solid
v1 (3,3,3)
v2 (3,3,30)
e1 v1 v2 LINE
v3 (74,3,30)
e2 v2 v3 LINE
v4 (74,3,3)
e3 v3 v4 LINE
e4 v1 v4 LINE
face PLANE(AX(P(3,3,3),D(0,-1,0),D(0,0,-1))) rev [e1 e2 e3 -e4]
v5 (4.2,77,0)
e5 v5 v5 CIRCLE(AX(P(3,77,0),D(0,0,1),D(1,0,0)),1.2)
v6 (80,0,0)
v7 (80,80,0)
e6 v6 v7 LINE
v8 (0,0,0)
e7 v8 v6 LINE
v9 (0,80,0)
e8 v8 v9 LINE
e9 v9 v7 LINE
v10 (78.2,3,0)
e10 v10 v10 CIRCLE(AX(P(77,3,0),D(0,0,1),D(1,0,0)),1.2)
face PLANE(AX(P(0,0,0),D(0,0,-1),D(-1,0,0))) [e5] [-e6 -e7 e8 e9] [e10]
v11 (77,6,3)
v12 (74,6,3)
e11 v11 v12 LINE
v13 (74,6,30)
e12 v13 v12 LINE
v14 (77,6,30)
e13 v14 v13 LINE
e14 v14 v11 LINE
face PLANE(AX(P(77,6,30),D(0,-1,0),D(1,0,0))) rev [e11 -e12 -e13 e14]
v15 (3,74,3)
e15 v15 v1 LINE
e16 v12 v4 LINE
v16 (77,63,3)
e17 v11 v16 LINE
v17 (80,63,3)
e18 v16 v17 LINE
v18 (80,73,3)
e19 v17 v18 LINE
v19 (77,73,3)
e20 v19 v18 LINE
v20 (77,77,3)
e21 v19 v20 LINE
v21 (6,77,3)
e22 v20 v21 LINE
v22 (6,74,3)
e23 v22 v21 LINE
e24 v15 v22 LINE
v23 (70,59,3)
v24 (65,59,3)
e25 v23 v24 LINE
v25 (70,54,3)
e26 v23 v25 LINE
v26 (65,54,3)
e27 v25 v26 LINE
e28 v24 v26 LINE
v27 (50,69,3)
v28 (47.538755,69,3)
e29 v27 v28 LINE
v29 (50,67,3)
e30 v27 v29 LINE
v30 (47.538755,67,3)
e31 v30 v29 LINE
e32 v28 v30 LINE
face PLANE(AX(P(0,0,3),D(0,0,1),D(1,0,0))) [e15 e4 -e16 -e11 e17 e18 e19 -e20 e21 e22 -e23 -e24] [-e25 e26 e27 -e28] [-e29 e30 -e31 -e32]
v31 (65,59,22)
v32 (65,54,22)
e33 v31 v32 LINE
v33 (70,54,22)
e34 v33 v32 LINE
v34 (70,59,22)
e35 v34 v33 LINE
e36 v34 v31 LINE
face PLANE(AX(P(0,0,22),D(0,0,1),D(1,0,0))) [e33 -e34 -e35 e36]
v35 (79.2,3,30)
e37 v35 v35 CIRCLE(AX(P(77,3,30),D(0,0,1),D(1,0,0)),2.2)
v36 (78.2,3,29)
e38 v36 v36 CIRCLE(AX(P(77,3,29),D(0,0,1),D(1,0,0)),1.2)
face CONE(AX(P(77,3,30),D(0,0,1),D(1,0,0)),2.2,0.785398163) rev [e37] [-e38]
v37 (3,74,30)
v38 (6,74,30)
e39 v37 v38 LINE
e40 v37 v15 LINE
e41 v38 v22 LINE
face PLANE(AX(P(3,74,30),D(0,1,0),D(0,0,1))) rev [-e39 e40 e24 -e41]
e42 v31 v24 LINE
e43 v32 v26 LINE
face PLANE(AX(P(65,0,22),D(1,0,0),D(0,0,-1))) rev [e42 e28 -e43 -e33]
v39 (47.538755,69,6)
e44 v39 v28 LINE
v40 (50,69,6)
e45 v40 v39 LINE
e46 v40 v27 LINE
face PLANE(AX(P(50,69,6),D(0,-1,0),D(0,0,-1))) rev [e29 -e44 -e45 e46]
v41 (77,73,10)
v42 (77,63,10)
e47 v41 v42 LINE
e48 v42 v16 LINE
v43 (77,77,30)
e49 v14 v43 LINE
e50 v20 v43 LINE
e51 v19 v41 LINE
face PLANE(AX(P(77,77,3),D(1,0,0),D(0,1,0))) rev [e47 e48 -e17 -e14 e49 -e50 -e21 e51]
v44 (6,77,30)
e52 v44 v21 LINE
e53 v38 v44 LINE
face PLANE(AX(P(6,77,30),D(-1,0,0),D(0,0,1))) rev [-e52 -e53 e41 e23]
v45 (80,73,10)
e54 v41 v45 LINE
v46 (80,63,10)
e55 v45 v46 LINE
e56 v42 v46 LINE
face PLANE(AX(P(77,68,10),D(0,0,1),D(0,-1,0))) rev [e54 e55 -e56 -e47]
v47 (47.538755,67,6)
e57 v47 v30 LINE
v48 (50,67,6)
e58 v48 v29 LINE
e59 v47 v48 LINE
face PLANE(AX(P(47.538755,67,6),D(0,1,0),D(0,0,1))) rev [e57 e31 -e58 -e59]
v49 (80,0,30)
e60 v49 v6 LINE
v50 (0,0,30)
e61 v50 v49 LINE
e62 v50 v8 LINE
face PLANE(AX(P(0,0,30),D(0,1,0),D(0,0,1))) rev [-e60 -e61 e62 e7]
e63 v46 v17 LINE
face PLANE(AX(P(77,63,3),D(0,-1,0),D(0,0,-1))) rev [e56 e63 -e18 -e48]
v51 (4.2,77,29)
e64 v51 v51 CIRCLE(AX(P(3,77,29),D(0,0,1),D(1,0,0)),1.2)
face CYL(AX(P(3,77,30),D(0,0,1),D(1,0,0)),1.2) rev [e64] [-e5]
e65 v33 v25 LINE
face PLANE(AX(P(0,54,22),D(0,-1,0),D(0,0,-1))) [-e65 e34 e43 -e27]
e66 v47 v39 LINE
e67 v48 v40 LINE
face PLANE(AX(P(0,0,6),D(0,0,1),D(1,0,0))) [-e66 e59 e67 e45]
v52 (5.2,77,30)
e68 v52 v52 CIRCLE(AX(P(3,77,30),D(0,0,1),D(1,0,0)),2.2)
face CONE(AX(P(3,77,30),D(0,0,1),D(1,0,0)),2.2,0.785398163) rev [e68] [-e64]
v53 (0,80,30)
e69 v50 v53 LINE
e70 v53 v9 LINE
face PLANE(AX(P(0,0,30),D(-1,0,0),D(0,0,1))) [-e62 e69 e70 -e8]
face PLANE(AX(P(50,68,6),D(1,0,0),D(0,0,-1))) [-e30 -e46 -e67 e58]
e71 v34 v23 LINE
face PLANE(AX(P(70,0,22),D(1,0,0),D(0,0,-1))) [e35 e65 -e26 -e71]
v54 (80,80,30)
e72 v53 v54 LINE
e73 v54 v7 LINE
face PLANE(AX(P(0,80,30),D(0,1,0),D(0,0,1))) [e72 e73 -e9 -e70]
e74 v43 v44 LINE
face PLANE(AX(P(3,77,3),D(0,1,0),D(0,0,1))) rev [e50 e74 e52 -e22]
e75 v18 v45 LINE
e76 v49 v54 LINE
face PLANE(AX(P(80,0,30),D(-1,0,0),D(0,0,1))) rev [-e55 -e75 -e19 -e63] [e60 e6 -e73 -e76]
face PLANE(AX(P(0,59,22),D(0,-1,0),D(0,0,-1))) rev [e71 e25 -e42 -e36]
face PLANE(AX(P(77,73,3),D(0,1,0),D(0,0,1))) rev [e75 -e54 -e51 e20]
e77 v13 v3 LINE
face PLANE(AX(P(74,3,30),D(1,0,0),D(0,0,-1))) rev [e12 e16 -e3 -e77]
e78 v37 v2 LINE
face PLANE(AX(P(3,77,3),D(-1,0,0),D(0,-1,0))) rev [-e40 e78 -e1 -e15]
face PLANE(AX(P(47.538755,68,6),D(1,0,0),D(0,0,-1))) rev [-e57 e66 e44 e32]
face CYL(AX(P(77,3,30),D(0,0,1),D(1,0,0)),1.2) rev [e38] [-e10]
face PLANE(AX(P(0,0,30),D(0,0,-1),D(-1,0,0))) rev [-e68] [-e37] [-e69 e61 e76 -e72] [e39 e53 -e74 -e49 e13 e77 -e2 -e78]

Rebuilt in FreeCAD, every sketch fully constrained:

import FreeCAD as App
import Part
import Sketcher
from FreeCAD import Vector

doc = App.newDocument("Part")
params = doc.addObject("Spreadsheet::Sheet", "Params")
for row, (alias, value) in enumerate([
    ("sketch1_width", "80 mm"),
    ("pad1_length", "30 mm"),
    ("sketch2_width", "74 mm"),
    ("pocket1_length", "27 mm"),
    ("sketch3_width", "10 mm"),
    ("sketch3_height", "7 mm"),
    ("pocket2_length", "3 mm"),
    ("sketch4_width", "3 mm"),
    ("pad2_length", "27 mm"),
    ("sketch5_width", "3 mm"),
    ("pad3_length", "27 mm"),
    ("sketch6_diameter", "2.4 mm"),
    ("hole_diameter", "2.4 mm"),
    ("hole_csink_diameter", "4.4 mm"),
    ("sketch7_height", "2 mm"),
    ("pad4_length", "3 mm"),
    ("sketch8_width", "5 mm"),
    ("pad5_length", "19 mm"),
], start=1):
    params.set(f"A{row}", alias)
    params.set(f"B{row}", "=" + value)
    params.setAlias(f"B{row}", alias)

body = doc.addObject("PartDesign::Body", "Body")

sketch1 = body.newObject("Sketcher::SketchObject", "Sketch")
sketch1.AttachmentSupport = (doc.getObject("XY_Plane"), [""])
sketch1.MapMode = "FlatFace"
sketch1.addGeometry(Part.LineSegment(Vector(0, 80, 0), Vector(0, 0, 0)), False)
sketch1.addGeometry(Part.LineSegment(Vector(0, 0, 0), Vector(80, 0, 0)), False)
sketch1.addGeometry(Part.LineSegment(Vector(80, 0, 0), Vector(80, 80, 0)), False)
sketch1.addGeometry(Part.LineSegment(Vector(80, 80, 0), Vector(0, 80, 0)), False)
sketch1.addConstraint(Sketcher.Constraint("Coincident", 0, 2, 1, 1))
sketch1.addConstraint(Sketcher.Constraint("Coincident", 1, 2, 2, 1))
sketch1.addConstraint(Sketcher.Constraint("Coincident", 2, 2, 3, 1))
sketch1.addConstraint(Sketcher.Constraint("Coincident", 3, 2, 0, 1))
sketch1.addConstraint(Sketcher.Constraint("Vertical", 0))
sketch1.addConstraint(Sketcher.Constraint("Horizontal", 1))
sketch1.addConstraint(Sketcher.Constraint("Vertical", 2))
sketch1.addConstraint(Sketcher.Constraint("Horizontal", 3))
sketch1.addConstraint(Sketcher.Constraint("Coincident", 0, 2, -1, 1))
sketch1.addConstraint(Sketcher.Constraint("Equal", 3, 0))
sketch1.addConstraint(Sketcher.Constraint("DistanceX", 1, 1, 1, 2, 80.0))
sketch1.setExpression("Constraints[10]", "Params.sketch1_width")
pad1 = body.newObject("PartDesign::Pad", "Pad")
pad1.Profile = sketch1
pad1.setExpression("Length", "Params.pad1_length")

sketch2 = body.newObject("Sketcher::SketchObject", "Sketch001")
sketch2.AttachmentSupport = (doc.getObject("XY_Plane"), [""])
sketch2.MapMode = "FlatFace"
sketch2.AttachmentOffset = App.Placement(Vector(0, 0, 30), App.Rotation())
sketch2.addGeometry(Part.LineSegment(Vector(3, 77, 0), Vector(3, 3, 0)), False)
sketch2.addGeometry(Part.LineSegment(Vector(3, 3, 0), Vector(77, 3, 0)), False)
sketch2.addGeometry(Part.LineSegment(Vector(77, 3, 0), Vector(77, 77, 0)), False)
sketch2.addGeometry(Part.LineSegment(Vector(77, 77, 0), Vector(3, 77, 0)), False)
sketch2.addConstraint(Sketcher.Constraint("Coincident", 0, 2, 1, 1))
sketch2.addConstraint(Sketcher.Constraint("Coincident", 1, 2, 2, 1))
sketch2.addConstraint(Sketcher.Constraint("Coincident", 2, 2, 3, 1))
sketch2.addConstraint(Sketcher.Constraint("Coincident", 3, 2, 0, 1))
sketch2.addConstraint(Sketcher.Constraint("Vertical", 0))
sketch2.addConstraint(Sketcher.Constraint("Horizontal", 1))
sketch2.addConstraint(Sketcher.Constraint("Vertical", 2))
sketch2.addConstraint(Sketcher.Constraint("Horizontal", 3))
sketch2.addConstraint(Sketcher.Constraint("Equal", 3, 0))
sketch2.addConstraint(Sketcher.Constraint("DistanceX", 1, 1, 1, 2, 74.0))
sketch2.addConstraint(Sketcher.Constraint("DistanceX", -1, 1, 0, 2, 3.0))
sketch2.addConstraint(Sketcher.Constraint("DistanceY", -1, 1, 0, 2, 3.0))
sketch2.setExpression("Constraints[9]", "Params.sketch2_width")
pocket1 = body.newObject("PartDesign::Pocket", "Pocket")
pocket1.Profile = sketch2
pocket1.setExpression("Length", "Params.pocket1_length")

sketch3 = body.newObject("Sketcher::SketchObject", "Sketch002")
sketch3.AttachmentSupport = (doc.getObject("YZ_Plane"), [""])
sketch3.MapMode = "FlatFace"
sketch3.AttachmentOffset = App.Placement(Vector(0, 0, 80), App.Rotation())
sketch3.addGeometry(Part.LineSegment(Vector(63, 3, 0), Vector(73, 3, 0)), False)
sketch3.addGeometry(Part.LineSegment(Vector(73, 3, 0), Vector(73, 10, 0)), False)
sketch3.addGeometry(Part.LineSegment(Vector(73, 10, 0), Vector(63, 10, 0)), False)
sketch3.addGeometry(Part.LineSegment(Vector(63, 10, 0), Vector(63, 3, 0)), False)
sketch3.addConstraint(Sketcher.Constraint("Coincident", 0, 2, 1, 1))
sketch3.addConstraint(Sketcher.Constraint("Coincident", 1, 2, 2, 1))
sketch3.addConstraint(Sketcher.Constraint("Coincident", 2, 2, 3, 1))
sketch3.addConstraint(Sketcher.Constraint("Coincident", 3, 2, 0, 1))
sketch3.addConstraint(Sketcher.Constraint("Horizontal", 0))
sketch3.addConstraint(Sketcher.Constraint("Vertical", 1))
sketch3.addConstraint(Sketcher.Constraint("Horizontal", 2))
sketch3.addConstraint(Sketcher.Constraint("Vertical", 3))
sketch3.addConstraint(Sketcher.Constraint("DistanceX", 0, 1, 0, 2, 10.0))
sketch3.addConstraint(Sketcher.Constraint("DistanceY", 1, 1, 1, 2, 7.0))
sketch3.addConstraint(Sketcher.Constraint("DistanceX", -1, 1, 0, 2, 73.0))
sketch3.addConstraint(Sketcher.Constraint("DistanceY", -1, 1, 0, 2, 3.0))
sketch3.setExpression("Constraints[8]", "Params.sketch3_width")
sketch3.setExpression("Constraints[9]", "Params.sketch3_height")
pocket2 = body.newObject("PartDesign::Pocket", "Pocket001")
pocket2.Profile = sketch3
pocket2.setExpression("Length", "Params.pocket2_length")

sketch4 = body.newObject("Sketcher::SketchObject", "Sketch003")
sketch4.AttachmentSupport = (doc.getObject("XY_Plane"), [""])
sketch4.MapMode = "FlatFace"
sketch4.AttachmentOffset = App.Placement(Vector(0, 0, 3), App.Rotation())
sketch4.addGeometry(Part.LineSegment(Vector(3, 77, 0), Vector(3, 74, 0)), False)
sketch4.addGeometry(Part.LineSegment(Vector(3, 74, 0), Vector(6, 74, 0)), False)
sketch4.addGeometry(Part.LineSegment(Vector(6, 74, 0), Vector(6, 77, 0)), False)
sketch4.addGeometry(Part.LineSegment(Vector(6, 77, 0), Vector(3, 77, 0)), False)
sketch4.addConstraint(Sketcher.Constraint("Coincident", 0, 2, 1, 1))
sketch4.addConstraint(Sketcher.Constraint("Coincident", 1, 2, 2, 1))
sketch4.addConstraint(Sketcher.Constraint("Coincident", 2, 2, 3, 1))
sketch4.addConstraint(Sketcher.Constraint("Coincident", 3, 2, 0, 1))
sketch4.addConstraint(Sketcher.Constraint("Vertical", 0))
sketch4.addConstraint(Sketcher.Constraint("Horizontal", 1))
sketch4.addConstraint(Sketcher.Constraint("Vertical", 2))
sketch4.addConstraint(Sketcher.Constraint("Horizontal", 3))
sketch4.addConstraint(Sketcher.Constraint("Equal", 3, 0))
sketch4.addConstraint(Sketcher.Constraint("DistanceX", 1, 1, 1, 2, 3.0))
sketch4.addConstraint(Sketcher.Constraint("DistanceX", -1, 1, 0, 2, 3.0))
sketch4.addConstraint(Sketcher.Constraint("DistanceY", -1, 1, 0, 2, 74.0))
sketch4.setExpression("Constraints[9]", "Params.sketch4_width")
pad2 = body.newObject("PartDesign::Pad", "Pad001")
pad2.Profile = sketch4
pad2.setExpression("Length", "Params.pad2_length")

sketch5 = body.newObject("Sketcher::SketchObject", "Sketch004")
sketch5.AttachmentSupport = (doc.getObject("XY_Plane"), [""])
sketch5.MapMode = "FlatFace"
sketch5.AttachmentOffset = App.Placement(Vector(0, 0, 3), App.Rotation())
sketch5.addGeometry(Part.LineSegment(Vector(74, 6, 0), Vector(74, 3, 0)), False)
sketch5.addGeometry(Part.LineSegment(Vector(74, 3, 0), Vector(77, 3, 0)), False)
sketch5.addGeometry(Part.LineSegment(Vector(77, 3, 0), Vector(77, 6, 0)), False)
sketch5.addGeometry(Part.LineSegment(Vector(77, 6, 0), Vector(74, 6, 0)), False)
sketch5.addConstraint(Sketcher.Constraint("Coincident", 0, 2, 1, 1))
sketch5.addConstraint(Sketcher.Constraint("Coincident", 1, 2, 2, 1))
sketch5.addConstraint(Sketcher.Constraint("Coincident", 2, 2, 3, 1))
sketch5.addConstraint(Sketcher.Constraint("Coincident", 3, 2, 0, 1))
sketch5.addConstraint(Sketcher.Constraint("Vertical", 0))
sketch5.addConstraint(Sketcher.Constraint("Horizontal", 1))
sketch5.addConstraint(Sketcher.Constraint("Vertical", 2))
sketch5.addConstraint(Sketcher.Constraint("Horizontal", 3))
sketch5.addConstraint(Sketcher.Constraint("Equal", 3, 0))
sketch5.addConstraint(Sketcher.Constraint("DistanceX", 1, 1, 1, 2, 3.0))
sketch5.addConstraint(Sketcher.Constraint("DistanceX", -1, 1, 0, 2, 74.0))
sketch5.addConstraint(Sketcher.Constraint("DistanceY", -1, 1, 0, 2, 3.0))
sketch5.setExpression("Constraints[9]", "Params.sketch5_width")
pad3 = body.newObject("PartDesign::Pad", "Pad002")
pad3.Profile = sketch5
pad3.setExpression("Length", "Params.pad3_length")

sketch6 = body.newObject("Sketcher::SketchObject", "Sketch005")
sketch6.AttachmentSupport = (doc.getObject("XY_Plane"), [""])
sketch6.MapMode = "FlatFace"
sketch6.AttachmentOffset = App.Placement(Vector(0, 0, 30), App.Rotation())
sketch6.addGeometry(Part.Circle(Vector(3, 77, 0), Vector(0, 0, 1), 1.2), False)
sketch6.addGeometry(Part.Circle(Vector(77, 3, 0), Vector(0, 0, 1), 1.2), False)
sketch6.addConstraint(Sketcher.Constraint("Equal", 0, 1))
sketch6.addConstraint(Sketcher.Constraint("Diameter", 0, 2.4))
sketch6.addConstraint(Sketcher.Constraint("DistanceX", -1, 1, 0, 3, 3.0))
sketch6.addConstraint(Sketcher.Constraint("DistanceY", -1, 1, 0, 3, 77.0))
sketch6.addConstraint(Sketcher.Constraint("DistanceX", -1, 1, 1, 3, 77.0))
sketch6.addConstraint(Sketcher.Constraint("DistanceY", -1, 1, 1, 3, 3.0))
sketch6.setExpression("Constraints[1]", "Params.sketch6_diameter")
doc.recompute()
hole = body.newObject("PartDesign::Hole", "Hole")
hole.Profile = sketch6
hole.ThreadType = "None"
hole.setExpression("Diameter", "Params.hole_diameter")
hole.DepthType = "ThroughAll"
hole.HoleCutType = "Countersink"
hole.setExpression("HoleCutDiameter", "Params.hole_csink_diameter")
hole.HoleCutCountersinkAngle = 90

sketch7 = body.newObject("Sketcher::SketchObject", "Sketch006")
sketch7.AttachmentSupport = (doc.getObject("XY_Plane"), [""])
sketch7.MapMode = "FlatFace"
sketch7.AttachmentOffset = App.Placement(Vector(0, 0, 3), App.Rotation())
sketch7.addGeometry(Part.LineSegment(Vector(50, 69, 0), Vector(47.538755, 69, 0)), False)
sketch7.addGeometry(Part.LineSegment(Vector(47.538755, 69, 0), Vector(47.538755, 67, 0)), False)
sketch7.addGeometry(Part.LineSegment(Vector(47.538755, 67, 0), Vector(50, 67, 0)), False)
sketch7.addGeometry(Part.LineSegment(Vector(50, 67, 0), Vector(50, 69, 0)), False)
sketch7.addConstraint(Sketcher.Constraint("Coincident", 0, 2, 1, 1))
sketch7.addConstraint(Sketcher.Constraint("Coincident", 1, 2, 2, 1))
sketch7.addConstraint(Sketcher.Constraint("Coincident", 2, 2, 3, 1))
sketch7.addConstraint(Sketcher.Constraint("Coincident", 3, 2, 0, 1))
sketch7.addConstraint(Sketcher.Constraint("Horizontal", 0))
sketch7.addConstraint(Sketcher.Constraint("Vertical", 1))
sketch7.addConstraint(Sketcher.Constraint("Horizontal", 2))
sketch7.addConstraint(Sketcher.Constraint("Vertical", 3))
sketch7.addConstraint(Sketcher.Constraint("DistanceY", 1, 2, 1, 1, 2.0))
sketch7.addConstraint(Sketcher.Constraint("DistanceY", -1, 1, 0, 2, 69.0))
sketch7.addConstraint(Sketcher.Constraint("DistanceX", -1, 1, 2, 2, 50.0))
sketch7.addConstraint(Sketcher.Constraint("DistanceX", 0, 2, 0, 1, 2.461245))
sketch7.setExpression("Constraints[8]", "Params.sketch7_height")
pad4 = body.newObject("PartDesign::Pad", "Pad003")
pad4.Profile = sketch7
pad4.setExpression("Length", "Params.pad4_length")

sketch8 = body.newObject("Sketcher::SketchObject", "Sketch007")
sketch8.AttachmentSupport = (doc.getObject("XY_Plane"), [""])
sketch8.MapMode = "FlatFace"
sketch8.AttachmentOffset = App.Placement(Vector(0, 0, 3), App.Rotation())
sketch8.addGeometry(Part.LineSegment(Vector(65, 59, 0), Vector(65, 54, 0)), False)
sketch8.addGeometry(Part.LineSegment(Vector(65, 54, 0), Vector(70, 54, 0)), False)
sketch8.addGeometry(Part.LineSegment(Vector(70, 54, 0), Vector(70, 59, 0)), False)
sketch8.addGeometry(Part.LineSegment(Vector(70, 59, 0), Vector(65, 59, 0)), False)
sketch8.addConstraint(Sketcher.Constraint("Coincident", 0, 2, 1, 1))
sketch8.addConstraint(Sketcher.Constraint("Coincident", 1, 2, 2, 1))
sketch8.addConstraint(Sketcher.Constraint("Coincident", 2, 2, 3, 1))
sketch8.addConstraint(Sketcher.Constraint("Coincident", 3, 2, 0, 1))
sketch8.addConstraint(Sketcher.Constraint("Vertical", 0))
sketch8.addConstraint(Sketcher.Constraint("Horizontal", 1))
sketch8.addConstraint(Sketcher.Constraint("Vertical", 2))
sketch8.addConstraint(Sketcher.Constraint("Horizontal", 3))
sketch8.addConstraint(Sketcher.Constraint("Equal", 3, 0))
sketch8.addConstraint(Sketcher.Constraint("DistanceX", 1, 1, 1, 2, 5.0))
sketch8.addConstraint(Sketcher.Constraint("DistanceX", -1, 1, 0, 2, 65.0))
sketch8.addConstraint(Sketcher.Constraint("DistanceY", -1, 1, 0, 2, 54.0))
sketch8.setExpression("Constraints[9]", "Params.sketch8_width")
pad5 = body.newObject("PartDesign::Pad", "Pad004")
pad5.Profile = sketch8
pad5.setExpression("Length", "Params.pad5_length")

doc.recompute()
